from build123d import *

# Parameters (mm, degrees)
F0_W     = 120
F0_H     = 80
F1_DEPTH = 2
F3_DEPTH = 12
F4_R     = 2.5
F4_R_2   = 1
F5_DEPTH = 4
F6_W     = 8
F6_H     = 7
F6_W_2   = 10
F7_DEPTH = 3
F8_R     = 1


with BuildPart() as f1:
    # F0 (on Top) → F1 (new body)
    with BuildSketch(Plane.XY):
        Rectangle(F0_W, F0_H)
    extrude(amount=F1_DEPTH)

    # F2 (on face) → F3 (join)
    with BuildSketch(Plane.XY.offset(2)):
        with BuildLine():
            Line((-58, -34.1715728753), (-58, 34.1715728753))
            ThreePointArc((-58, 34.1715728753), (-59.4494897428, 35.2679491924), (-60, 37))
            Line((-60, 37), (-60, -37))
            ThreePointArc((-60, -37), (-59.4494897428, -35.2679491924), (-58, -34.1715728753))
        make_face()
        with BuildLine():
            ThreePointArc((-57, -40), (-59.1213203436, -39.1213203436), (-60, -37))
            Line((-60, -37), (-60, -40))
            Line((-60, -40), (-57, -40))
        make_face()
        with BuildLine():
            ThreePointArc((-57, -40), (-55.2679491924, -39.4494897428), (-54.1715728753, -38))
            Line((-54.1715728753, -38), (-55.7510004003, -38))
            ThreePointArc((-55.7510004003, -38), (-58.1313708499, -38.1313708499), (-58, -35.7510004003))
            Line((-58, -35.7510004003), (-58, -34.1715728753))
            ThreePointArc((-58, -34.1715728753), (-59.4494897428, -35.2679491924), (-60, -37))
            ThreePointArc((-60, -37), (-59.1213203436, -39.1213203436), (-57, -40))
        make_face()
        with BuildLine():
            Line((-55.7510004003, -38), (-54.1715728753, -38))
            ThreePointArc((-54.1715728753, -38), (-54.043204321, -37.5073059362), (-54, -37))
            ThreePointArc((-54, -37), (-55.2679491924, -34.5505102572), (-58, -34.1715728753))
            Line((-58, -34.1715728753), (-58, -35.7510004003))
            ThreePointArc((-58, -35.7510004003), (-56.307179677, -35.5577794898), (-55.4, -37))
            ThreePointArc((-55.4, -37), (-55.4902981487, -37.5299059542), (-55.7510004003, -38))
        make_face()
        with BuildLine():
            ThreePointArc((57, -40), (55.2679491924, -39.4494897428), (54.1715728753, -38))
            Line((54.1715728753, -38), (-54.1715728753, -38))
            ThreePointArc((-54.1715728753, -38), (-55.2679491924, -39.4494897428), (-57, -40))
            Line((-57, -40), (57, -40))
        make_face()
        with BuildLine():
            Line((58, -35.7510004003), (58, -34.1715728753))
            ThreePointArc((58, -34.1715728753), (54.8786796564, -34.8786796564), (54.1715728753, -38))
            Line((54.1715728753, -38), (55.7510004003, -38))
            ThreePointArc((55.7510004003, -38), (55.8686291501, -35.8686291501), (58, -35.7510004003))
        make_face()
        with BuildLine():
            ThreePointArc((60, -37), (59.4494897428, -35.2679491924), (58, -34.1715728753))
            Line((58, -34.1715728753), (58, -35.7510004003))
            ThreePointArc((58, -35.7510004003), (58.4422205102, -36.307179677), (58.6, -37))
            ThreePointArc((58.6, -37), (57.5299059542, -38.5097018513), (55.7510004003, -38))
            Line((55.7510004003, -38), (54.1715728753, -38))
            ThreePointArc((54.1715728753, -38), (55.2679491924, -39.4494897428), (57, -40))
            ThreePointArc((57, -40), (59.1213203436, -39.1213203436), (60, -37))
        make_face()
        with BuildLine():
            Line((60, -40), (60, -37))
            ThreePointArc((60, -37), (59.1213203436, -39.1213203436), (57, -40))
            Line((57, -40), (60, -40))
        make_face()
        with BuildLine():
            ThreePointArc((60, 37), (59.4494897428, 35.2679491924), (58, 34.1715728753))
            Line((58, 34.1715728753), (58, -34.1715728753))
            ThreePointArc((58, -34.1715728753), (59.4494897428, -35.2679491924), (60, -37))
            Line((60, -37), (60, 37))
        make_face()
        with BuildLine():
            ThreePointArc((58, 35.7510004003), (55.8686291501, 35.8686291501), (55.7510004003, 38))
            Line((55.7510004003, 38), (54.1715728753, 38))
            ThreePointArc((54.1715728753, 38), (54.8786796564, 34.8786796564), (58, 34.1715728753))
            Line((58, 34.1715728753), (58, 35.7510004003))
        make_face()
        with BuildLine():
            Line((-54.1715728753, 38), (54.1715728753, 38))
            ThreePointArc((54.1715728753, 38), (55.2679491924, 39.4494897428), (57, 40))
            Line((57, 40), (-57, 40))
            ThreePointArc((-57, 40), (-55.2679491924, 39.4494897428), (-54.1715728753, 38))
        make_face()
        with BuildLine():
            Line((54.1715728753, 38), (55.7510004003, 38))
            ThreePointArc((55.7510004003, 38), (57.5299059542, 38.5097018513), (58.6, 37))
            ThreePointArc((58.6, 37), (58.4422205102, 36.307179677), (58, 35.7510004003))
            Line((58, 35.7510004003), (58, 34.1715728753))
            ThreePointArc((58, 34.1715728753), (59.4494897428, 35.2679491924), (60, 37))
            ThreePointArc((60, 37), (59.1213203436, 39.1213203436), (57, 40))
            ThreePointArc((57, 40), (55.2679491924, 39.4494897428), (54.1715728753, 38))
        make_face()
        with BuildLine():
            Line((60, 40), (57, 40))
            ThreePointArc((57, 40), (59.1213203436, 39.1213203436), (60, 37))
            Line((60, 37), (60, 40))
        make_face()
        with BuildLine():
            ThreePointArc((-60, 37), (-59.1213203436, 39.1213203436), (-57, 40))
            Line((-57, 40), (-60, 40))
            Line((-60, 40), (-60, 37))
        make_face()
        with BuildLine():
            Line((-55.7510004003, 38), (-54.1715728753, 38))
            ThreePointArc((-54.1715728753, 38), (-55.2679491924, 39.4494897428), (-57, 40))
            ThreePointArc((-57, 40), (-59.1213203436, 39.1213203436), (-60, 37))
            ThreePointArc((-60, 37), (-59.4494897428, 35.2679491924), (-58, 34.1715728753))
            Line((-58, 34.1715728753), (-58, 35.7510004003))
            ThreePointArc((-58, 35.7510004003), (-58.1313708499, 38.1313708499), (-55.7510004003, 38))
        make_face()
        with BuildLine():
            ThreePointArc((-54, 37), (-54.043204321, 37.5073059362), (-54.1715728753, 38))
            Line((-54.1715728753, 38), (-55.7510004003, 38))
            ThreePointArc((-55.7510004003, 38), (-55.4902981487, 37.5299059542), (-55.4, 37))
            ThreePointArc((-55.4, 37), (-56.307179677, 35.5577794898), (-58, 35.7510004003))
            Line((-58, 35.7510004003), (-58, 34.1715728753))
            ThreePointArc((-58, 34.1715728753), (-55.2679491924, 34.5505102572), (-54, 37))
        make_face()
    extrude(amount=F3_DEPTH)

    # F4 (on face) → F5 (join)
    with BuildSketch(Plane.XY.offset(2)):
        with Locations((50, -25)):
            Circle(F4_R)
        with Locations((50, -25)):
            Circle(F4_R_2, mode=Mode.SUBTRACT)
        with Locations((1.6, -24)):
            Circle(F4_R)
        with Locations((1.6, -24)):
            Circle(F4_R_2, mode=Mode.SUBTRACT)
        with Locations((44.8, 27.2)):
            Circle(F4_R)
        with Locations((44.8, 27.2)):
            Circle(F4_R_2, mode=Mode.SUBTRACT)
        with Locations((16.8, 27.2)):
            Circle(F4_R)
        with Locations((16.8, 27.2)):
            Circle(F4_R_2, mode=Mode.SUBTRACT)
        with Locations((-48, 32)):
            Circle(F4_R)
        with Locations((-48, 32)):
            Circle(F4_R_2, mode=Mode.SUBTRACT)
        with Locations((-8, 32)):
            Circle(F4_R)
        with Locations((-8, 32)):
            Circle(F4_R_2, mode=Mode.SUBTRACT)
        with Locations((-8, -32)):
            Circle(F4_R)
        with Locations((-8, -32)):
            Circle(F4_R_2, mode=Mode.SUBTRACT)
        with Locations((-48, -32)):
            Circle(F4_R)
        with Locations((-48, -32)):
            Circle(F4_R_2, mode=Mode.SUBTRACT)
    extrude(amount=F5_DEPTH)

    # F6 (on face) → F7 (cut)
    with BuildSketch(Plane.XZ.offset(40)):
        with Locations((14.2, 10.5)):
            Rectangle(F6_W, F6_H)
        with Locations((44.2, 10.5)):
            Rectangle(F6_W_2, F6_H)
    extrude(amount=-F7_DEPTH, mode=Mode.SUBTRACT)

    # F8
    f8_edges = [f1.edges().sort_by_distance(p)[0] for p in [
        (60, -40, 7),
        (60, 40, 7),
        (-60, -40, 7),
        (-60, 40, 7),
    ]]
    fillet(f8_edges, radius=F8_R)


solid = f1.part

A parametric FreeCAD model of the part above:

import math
import FreeCAD as App
import Part
import Sketcher
Q = App.Units.Quantity


def edges_at(feature, points):
    """Names of the edges that pass closest to the given points."""
    edges = feature.Shape.Edges
    near = lambda p: min(range(len(edges)), key=lambda i: edges[i].distToShape(Part.Vertex(*p))[0])
    return sorted({f"Edge{near(p) + 1}" for p in points})


def add_polygon(sketch, points):
    """Adds a closed chain of lines whose ends are joined by coincident constraints."""
    first, n = sketch.GeometryCount, len(points)
    for a, b in zip(points, points[1:] + points[:1]):
        sketch.addGeometry(Part.LineSegment(App.Vector(*a, 0), App.Vector(*b, 0)), False)
    for i in range(n):
        sketch.addConstraint(Sketcher.Constraint("Coincident", first + i, 2, first + (i + 1) % n, 1))

doc = App.newDocument("Part")
params = doc.addObject("Spreadsheet::Sheet", "Params")
for row, (alias, value) in enumerate([
    ("sketch1_width", "120 mm"),
    ("sketch1_height", "80 mm"),
    ("pad1_length", "2 mm"),
    ("sketch2_radius", "3 mm"),
    ("sketch2_radius2", "1.6 mm"),
    ("sketch2_width", "120 mm"),
    ("sketch2_height", "80 mm"),
    ("pad2_length", "12 mm"),
    ("sketch3_diameter", "5 mm"),
    ("sketch3_diameter2", "2 mm"),
    ("pad3_length", "4 mm"),
    ("sketch4_width", "8 mm"),
    ("sketch4_width2", "10 mm"),
    ("sketch4_height", "7 mm"),
    ("pocket1_length", "3 mm"),
    ("fillet_radius", "1 mm"),
], start=1):
    params.set(f"A{row}", alias)
    params.set(f"B{row}", "=" + value)
    params.setAlias(f"B{row}", alias)

body = doc.addObject("PartDesign::Body", "Body")

sketch1 = body.newObject("Sketcher::SketchObject", "Sketch")
sketch1.AttachmentSupport = (doc.getObject("XY_Plane"), [""])
sketch1.MapMode = "FlatFace"
add_polygon(sketch1, [(-60, 40), (-60, -40), (60, -40), (60, 40)])
sketch1.addConstraint(Sketcher.Constraint("Vertical", 0))
sketch1.addConstraint(Sketcher.Constraint("Horizontal", 1))
sketch1.addConstraint(Sketcher.Constraint("Vertical", 2))
sketch1.addConstraint(Sketcher.Constraint("Horizontal", 3))
sketch1.addConstraint(Sketcher.Constraint("Symmetric", 0, 2, 2, 2, -1, 1))
sketch1.addConstraint(Sketcher.Constraint("DistanceX", 1, 1, 1, 2, Q("120 mm")))
sketch1.addConstraint(Sketcher.Constraint("DistanceY", 0, 2, 0, 1, Q("80 mm")))
sketch1.setExpression("Constraints[9]", "Params.sketch1_width")
sketch1.setExpression("Constraints[10]", "Params.sketch1_height")
pad1 = body.newObject("PartDesign::Pad", "Pad")
pad1.Profile = sketch1
pad1.setExpression("Length", "Params.pad1_length")

sketch2 = body.newObject("Sketcher::SketchObject", "Sketch001")
sketch2.AttachmentSupport = (doc.getObject("XY_Plane"), [""])
sketch2.MapMode = "FlatFace"
sketch2.AttachmentOffset = App.Placement(App.Vector(0, 0, 2), App.Rotation())
add_polygon(sketch2, [(-60, -40), (60, -40), (60, 40), (-60, 40)])
sketch2.addGeometry(Part.ArcOfCircle(Part.Circle(App.Vector(57, 37, 0), App.Vector(0, 0, 1), 3), math.radians(161), math.radians(289)), False)
sketch2.addGeometry(Part.LineSegment(App.Vector(58, 34.2, 0), App.Vector(58, -34.2, 0)), False)
sketch2.addGeometry(Part.ArcOfCircle(Part.Circle(App.Vector(57, -37, 0), App.Vector(0, 0, 1), 3), math.radians(71), math.radians(199)), False)
sketch2.addGeometry(Part.LineSegment(App.Vector(54.2, -38, 0), App.Vector(-54.2, -38, 0)), False)
sketch2.addGeometry(Part.ArcOfCircle(Part.Circle(App.Vector(-57, -37, 0), App.Vector(0, 0, 1), 3), math.radians(-19.47), math.radians(0)), False)
sketch2.addGeometry(Part.ArcOfCircle(Part.Circle(App.Vector(-57, -37, 0), App.Vector(0, 0, 1), 3), math.radians(0), math.radians(109)), False)
sketch2.addGeometry(Part.LineSegment(App.Vector(-58, -34.2, 0), App.Vector(-58, 34.2, 0)), False)
sketch2.addGeometry(Part.ArcOfCircle(Part.Circle(App.Vector(-57, 37, 0), App.Vector(0, 0, 1), 3), math.radians(-109), math.radians(0)), False)
sketch2.addGeometry(Part.ArcOfCircle(Part.Circle(App.Vector(-57, 37, 0), App.Vector(0, 0, 1), 3), math.radians(0), math.radians(19.47)), False)
sketch2.addGeometry(Part.LineSegment(App.Vector(-54.2, 38, 0), App.Vector(54.2, 38, 0)), False)
sketch2.addGeometry(Part.ArcOfCircle(Part.Circle(App.Vector(-57, 37, 0), App.Vector(0, 0, 1), 1.6), math.radians(39), math.radians(231)), False)
sketch2.addGeometry(Part.ArcOfCircle(Part.Circle(App.Vector(-57, 37, 0), App.Vector(0, 0, 1), 1.6), math.radians(0), math.radians(39)), False)
sketch2.addGeometry(Part.ArcOfCircle(Part.Circle(App.Vector(-57, 37, 0), App.Vector(0, 0, 1), 1.6), math.radians(-129), math.radians(0)), False)
sketch2.addGeometry(Part.ArcOfCircle(Part.Circle(App.Vector(-57, -37, 0), App.Vector(0, 0, 1), 1.6), math.radians(129), math.radians(321)), False)
sketch2.addGeometry(Part.ArcOfCircle(Part.Circle(App.Vector(-57, -37, 0), App.Vector(0, 0, 1), 1.6), math.radians(0), math.radians(129)), False)
sketch2.addGeometry(Part.ArcOfCircle(Part.Circle(App.Vector(-57, -37, 0), App.Vector(0, 0, 1), 1.6), math.radians(-39), math.radians(0)), False)
sketch2.addGeometry(Part.ArcOfCircle(Part.Circle(App.Vector(57, -37, 0), App.Vector(0, 0, 1), 1.6), math.radians(0), math.radians(51)), False)
sketch2.addGeometry(Part.ArcOfCircle(Part.Circle(App.Vector(57, -37, 0), App.Vector(0, 0, 1), 1.6), math.radians(-141), math.radians(0)), False)
sketch2.addGeometry(Part.ArcOfCircle(Part.Circle(App.Vector(57, -37, 0), App.Vector(0, 0, 1), 1.6), math.radians(51), math.radians(219)), False)
sketch2.addGeometry(Part.ArcOfCircle(Part.Circle(App.Vector(57, 37, 0), App.Vector(0, 0, 1), 1.6), math.radians(0), math.radians(141)), False)
sketch2.addGeometry(Part.ArcOfCircle(Part.Circle(App.Vector(57, 37, 0), App.Vector(0, 0, 1), 1.6), math.radians(-51), math.radians(0)), False)
sketch2.addGeometry(Part.ArcOfCircle(Part.Circle(App.Vector(57, 37, 0), App.Vector(0, 0, 1), 1.6), math.radians(141), math.radians(309)), False)
sketch2.addConstraint(Sketcher.Constraint("Coincident", 4, 2, 5, 1))
sketch2.addConstraint(Sketcher.Constraint("Coincident", 5, 2, 6, 1))
sketch2.addConstraint(Sketcher.Constraint("Coincident", 6, 2, 7, 1))
sketch2.addConstraint(Sketcher.Constraint("Coincident", 7, 2, 8, 1))
sketch2.addConstraint(Sketcher.Constraint("Tangent", 8, 2, 9, 1))
sketch2.addConstraint(Sketcher.Constraint("Coincident", 9, 2, 10, 1))
sketch2.addConstraint(Sketcher.Constraint("Coincident", 10, 2, 11, 1))
sketch2.addConstraint(Sketcher.Constraint("Tangent", 11, 2, 12, 1))
sketch2.addConstraint(Sketcher.Constraint("Coincident", 12, 2, 13, 1))
sketch2.addConstraint(Sketcher.Constraint("Coincident", 13, 2, 4, 1))
sketch2.addConstraint(Sketcher.Constraint("Tangent", 14, 1, 15, 2))
sketch2.addConstraint(Sketcher.Constraint("Tangent", 15, 1, 16, 2))
sketch2.addConstraint(Sketcher.Constraint("Tangent", 16, 1, 14, 2))
sketch2.addConstraint(Sketcher.Constraint("Tangent", 17, 1, 18, 2))
sketch2.addConstraint(Sketcher.Constraint("Tangent", 18, 1, 19, 2))
sketch2.addConstraint(Sketcher.Constraint("Tangent", 19, 1, 17, 2))
sketch2.addConstraint(Sketcher.Constraint("Tangent", 20, 1, 21, 2))
sketch2.addConstraint(Sketcher.Constraint("Tangent", 21, 1, 22, 2))
sketch2.addConstraint(Sketcher.Constraint("Tangent", 22, 1, 20, 2))
sketch2.addConstraint(Sketcher.Constraint("Tangent", 23, 1, 24, 2))
sketch2.addConstraint(Sketcher.Constraint("Tangent", 24, 1, 25, 2))
sketch2.addConstraint(Sketcher.Constraint("Tangent", 25, 1, 23, 2))
sketch2.addConstraint(Sketcher.Constraint("Horizontal", 0))
sketch2.addConstraint(Sketcher.Constraint("Vertical", 1))
sketch2.addConstraint(Sketcher.Constraint("Horizontal", 2))
sketch2.addConstraint(Sketcher.Constraint("Vertical", 3))
sketch2.addConstraint(Sketcher.Constraint("Vertical", 5))
sketch2.addConstraint(Sketcher.Constraint("Horizontal", 7))
sketch2.addConstraint(Sketcher.Constraint("Vertical", 10))
sketch2.addConstraint(Sketcher.Constraint("Horizontal", 13))
sketch2.addConstraint(Sketcher.Constraint("Coincident", 14, 3, 11, 3))
sketch2.addConstraint(Sketcher.Constraint("Coincident", 17, 3, 8, 3))
sketch2.addConstraint(Sketcher.Constraint("Coincident", 20, 3, 6, 3))
sketch2.addConstraint(Sketcher.Constraint("Coincident", 23, 3, 4, 3))
sketch2.addConstraint(Sketcher.Constraint("Equal", 4, 6))
sketch2.addConstraint(Sketcher.Constraint("Equal", 6, 8))
sketch2.addConstraint(Sketcher.Constraint("Equal", 8, 9))
sketch2.addConstraint(Sketcher.Constraint("Equal", 9, 11))
sketch2.addConstraint(Sketcher.Constraint("Equal", 11, 12))
sketch2.addConstraint(Sketcher.Constraint("Equal", 16, 17))
sketch2.addConstraint(Sketcher.Constraint("Equal", 19, 20))
sketch2.addConstraint(Sketcher.Constraint("Equal", 22, 23))
sketch2.addConstraint(Sketcher.Constraint("Symmetric", 4, 3, 8, 3, -1, 1))
sketch2.addConstraint(Sketcher.Constraint("Symmetric", 6, 3, 11, 3, -1, 1))
sketch2.addConstraint(Sketcher.Constraint("Symmetric", 0, 2, 2, 2, -1, 1))
sketch2.addConstraint(Sketcher.Constraint("Symmetric", 6, 3, 8, 3, -2))
sketch2.addConstraint(Sketcher.Constraint("Horizontal", 22, 3, 8, 2))
sketch2.addConstraint(Sketcher.Constraint("Horizontal", 5, 2, 9, 2))
sketch2.addConstraint(Sketcher.Constraint("Horizontal", 25, 3, 11, 2))
sketch2.addConstraint(Sketcher.Constraint("Horizontal", 13, 2, 14, 1))
sketch2.addConstraint(Sketcher.Constraint("Horizontal", 11, 2, 15, 1))
sketch2.addConstraint(Sketcher.Constraint("Horizontal", 8, 2, 18, 1))
sketch2.addConstraint(Sketcher.Constraint("Horizontal", 7, 2, 19, 1))
sketch2.addConstraint(Sketcher.Constraint("Horizontal", 18, 1, 20, 1))
sketch2.addConstraint(Sketcher.Constraint("Horizontal", 19, 1, 21, 1))
sketch2.addConstraint(Sketcher.Constraint("Horizontal", 17, 1, 22, 1))
sketch2.addConstraint(Sketcher.Constraint("Horizontal", 15, 1, 23, 1))
sketch2.addConstraint(Sketcher.Constraint("Horizontal", 16, 1, 24, 1))
sketch2.addConstraint(Sketcher.Constraint("Horizontal", 14, 1, 25, 1))
sketch2.addConstraint(Sketcher.Constraint("Vertical", 7, 2, 12, 2))
sketch2.addConstraint(Sketcher.Constraint("Vertical", 10, 2, 16, 1))
sketch2.addConstraint(Sketcher.Constraint("Vertical", 16, 1, 17, 1))
sketch2.addConstraint(Sketcher.Constraint("Radius", 4, Q("3 mm")))
sketch2.addConstraint(Sketcher.Constraint("Radius", 14, Q("1.6 mm")))
sketch2.addConstraint(Sketcher.Constraint("DistanceX", 0, 1, 0, 2, Q("120 mm")))
sketch2.addConstraint(Sketcher.Constraint("DistanceY", 1, 1, 1, 2, Q("80 mm")))
sketch2.addConstraint(Sketcher.Constraint("DistanceX", -1, 1, 4, 3, Q("57 mm")))
sketch2.addConstraint(Sketcher.Constraint("DistanceY", -1, 1, 4, 3, Q("37 mm")))
sketch2.addConstraint(Sketcher.Constraint("DistanceX", -1, 1, 4, 2, Q("58 mm")))
sketch2.addConstraint(Sketcher.Constraint("DistanceY", 6, 2, -1, 1, Q("38 mm")))
sketch2.setExpression("Constraints[66]", "Params.sketch2_radius")
sketch2.setExpression("Constraints[67]", "Params.sketch2_radius2")
sketch2.setExpression("Constraints[68]", "Params.sketch2_width")
sketch2.setExpression("Constraints[69]", "Params.sketch2_height")
pad2 = body.newObject("PartDesign::Pad", "Pad001")
pad2.Profile = sketch2
pad2.setExpression("Length", "Params.pad2_length")

sketch3 = body.newObject("Sketcher::SketchObject", "Sketch002")
sketch3.AttachmentSupport = (doc.getObject("XY_Plane"), [""])
sketch3.MapMode = "FlatFace"
sketch3.AttachmentOffset = App.Placement(App.Vector(0, 0, 2), App.Rotation())
sketch3.addGeometry(Part.Circle(App.Vector(50, -25, 0), App.Vector(0, 0, 1), 2.5), False)
sketch3.addGeometry(Part.Circle(App.Vector(50, -25, 0), App.Vector(0, 0, 1), 1), False)
sketch3.addGeometry(Part.Circle(App.Vector(1.6, -24, 0), App.Vector(0, 0, 1), 2.5), False)
sketch3.addGeometry(Part.Circle(App.Vector(1.6, -24, 0), App.Vector(0, 0, 1), 1), False)
sketch3.addGeometry(Part.Circle(App.Vector(44.8, 27.2, 0), App.Vector(0, 0, 1), 2.5), False)
sketch3.addGeometry(Part.Circle(App.Vector(44.8, 27.2, 0), App.Vector(0, 0, 1), 1), False)
sketch3.addGeometry(Part.Circle(App.Vector(16.8, 27.2, 0), App.Vector(0, 0, 1), 2.5), False)
sketch3.addGeometry(Part.Circle(App.Vector(16.8, 27.2, 0), App.Vector(0, 0, 1), 1), False)
sketch3.addGeometry(Part.Circle(App.Vector(-48, 32, 0), App.Vector(0, 0, 1), 2.5), False)
sketch3.addGeometry(Part.Circle(App.Vector(-48, 32, 0), App.Vector(0, 0, 1), 1), False)
sketch3.addGeometry(Part.Circle(App.Vector(-8, 32, 0), App.Vector(0, 0, 1), 2.5), False)
sketch3.addGeometry(Part.Circle(App.Vector(-8, 32, 0), App.Vector(0, 0, 1), 1), False)
sketch3.addGeometry(Part.Circle(App.Vector(-8, -32, 0), App.Vector(0, 0, 1), 2.5), False)
sketch3.addGeometry(Part.Circle(App.Vector(-8, -32, 0), App.Vector(0, 0, 1), 1), False)
sketch3.addGeometry(Part.Circle(App.Vector(-48, -32, 0), App.Vector(0, 0, 1), 2.5), False)
sketch3.addGeometry(Part.Circle(App.Vector(-48, -32, 0), App.Vector(0, 0, 1), 1), False)
sketch3.addConstraint(Sketcher.Constraint("Coincident", 1, 3, 0, 3))
sketch3.addConstraint(Sketcher.Constraint("Coincident", 3, 3, 2, 3))
sketch3.addConstraint(Sketcher.Constraint("Coincident", 5, 3, 4, 3))
sketch3.addConstraint(Sketcher.Constraint("Coincident", 7, 3, 6, 3))
sketch3.addConstraint(Sketcher.Constraint("Coincident", 9, 3, 8, 3))
sketch3.addConstraint(Sketcher.Constraint("Coincident", 11, 3, 10, 3))
sketch3.addConstraint(Sketcher.Constraint("Coincident", 13, 3, 12, 3))
sketch3.addConstraint(Sketcher.Constraint("Coincident", 15, 3, 14, 3))
sketch3.addConstraint(Sketcher.Constraint("Equal", 0, 2))
sketch3.addConstraint(Sketcher.Constraint("Equal", 1, 3))
sketch3.addConstraint(Sketcher.Constraint("Equal", 2, 4))
sketch3.addConstraint(Sketcher.Constraint("Equal", 3, 5))
sketch3.addConstraint(Sketcher.Constraint("Equal", 4, 6))
sketch3.addConstraint(Sketcher.Constraint("Equal", 5, 7))
sketch3.addConstraint(Sketcher.Constraint("Equal", 6, 8))
sketch3.addConstraint(Sketcher.Constraint("Equal", 7, 9))
sketch3.addConstraint(Sketcher.Constraint("Equal", 8, 10))
sketch3.addConstraint(Sketcher.Constraint("Equal", 9, 11))
sketch3.addConstraint(Sketcher.Constraint("Equal", 10, 12))
sketch3.addConstraint(Sketcher.Constraint("Equal", 11, 13))
sketch3.addConstraint(Sketcher.Constraint("Equal", 12, 14))
sketch3.addConstraint(Sketcher.Constraint("Equal", 13, 15))
sketch3.addConstraint(Sketcher.Constraint("Symmetric", 10, 3, 12, 3, -1))
sketch3.addConstraint(Sketcher.Constraint("Symmetric", 8, 3, 14, 3, -1))
sketch3.addConstraint(Sketcher.Constraint("Horizontal", 5, 3, 6, 3))
sketch3.addConstraint(Sketcher.Constraint("Horizontal", 9, 3, 10, 3))
sketch3.addConstraint(Sketcher.Constraint("Diameter", 0, Q("5 mm")))
sketch3.addConstraint(Sketcher.Constraint("Diameter", 1, Q("2 mm")))
sketch3.addConstraint(Sketcher.Constraint("DistanceX", -1, 1, 0, 3, Q("50 mm")))
sketch3.addConstraint(Sketcher.Constraint("DistanceY", 0, 3, -1, 1, Q("25 mm")))
sketch3.addConstraint(Sketcher.Constraint("DistanceY", 2, 3, -1, 1, Q("24 mm")))
sketch3.addConstraint(Sketcher.Constraint("DistanceX", 8, 3, -1, 1, Q("48 mm")))
sketch3.addConstraint(Sketcher.Constraint("DistanceY", -1, 1, 8, 3, Q("32 mm")))
sketch3.addConstraint(Sketcher.Constraint("DistanceX", 10, 3, -1, 1, Q("8 mm")))
sketch3.addConstraint(Sketcher.Constraint("DistanceX", 6, 3, 4, 3, Q("28 mm")))
sketch3.addConstraint(Sketcher.Constraint("DistanceX", -1, 1, 2, 3, Q("1.6 mm")))
sketch3.addConstraint(Sketcher.Constraint("DistanceX", -1, 1, 4, 3, Q("44.8 mm")))
sketch3.addConstraint(Sketcher.Constraint("DistanceY", -1, 1, 4, 3, Q("27.2 mm")))
sketch3.setExpression("Constraints[26]", "Params.sketch3_diameter")
sketch3.setExpression("Constraints[27]", "Params.sketch3_diameter2")
pad3 = body.newObject("PartDesign::Pad", "Pad002")
pad3.Profile = sketch3
pad3.setExpression("Length", "Params.pad3_length")

sketch4 = body.newObject("Sketcher::SketchObject", "Sketch003")
sketch4.AttachmentSupport = (doc.getObject("XZ_Plane"), [""])
sketch4.MapMode = "FlatFace"
sketch4.AttachmentOffset = App.Placement(App.Vector(0, 0, 40), App.Rotation())
add_polygon(sketch4, [(10, 14), (10, 7), (18, 7), (18, 14)])
add_polygon(sketch4, [(39, 14), (39, 7), (49, 7), (49, 14)])
sketch4.addConstraint(Sketcher.Constraint("Vertical", 0))
sketch4.addConstraint(Sketcher.Constraint("Horizontal", 1))
sketch4.addConstraint(Sketcher.Constraint("Vertical", 2))
sketch4.addConstraint(Sketcher.Constraint("Horizontal", 3))
sketch4.addConstraint(Sketcher.Constraint("Vertical", 4))
sketch4.addConstraint(Sketcher.Constraint("Horizontal", 5))
sketch4.addConstraint(Sketcher.Constraint("Vertical", 6))
sketch4.addConstraint(Sketcher.Constraint("Horizontal", 7))
sketch4.addConstraint(Sketcher.Constraint("Horizontal", 1, 2, 4, 2))
sketch4.addConstraint(Sketcher.Constraint("Horizontal", 3, 2, 6, 2))
sketch4.addConstraint(Sketcher.Constraint("DistanceX", 1, 1, 1, 2, Q("8 mm")))
sketch4.addConstraint(Sketcher.Constraint("DistanceX", 5, 1, 5, 2, Q("10 mm")))
sketch4.addConstraint(Sketcher.Constraint("DistanceY", 0, 2, 0, 1, Q("7 mm")))
sketch4.addConstraint(Sketcher.Constraint("DistanceY", -1, 1, 0, 2, Q("7 mm")))
sketch4.addConstraint(Sketcher.Constraint("DistanceX", 1, 2, 4, 2, Q("21 mm")))
sketch4.addConstraint(Sketcher.Constraint("DistanceX", -1, 1, 0, 2, Q("10.2 mm")))
sketch4.setExpression("Constraints[18]", "Params.sketch4_width")
sketch4.setExpression("Constraints[19]", "Params.sketch4_width2")
sketch4.setExpression("Constraints[20]", "Params.sketch4_height")
pocket1 = body.newObject("PartDesign::Pocket", "Pocket")
pocket1.Profile = sketch4
pocket1.setExpression("Length", "Params.pocket1_length")
doc.recompute()

fillet = body.newObject("PartDesign::Fillet", "Fillet")
fillet.Base = (pocket1, edges_at(pocket1, [
    (60, -40, 7),
    (60, 40, 7),
    (-60, -40, 7),
    (-60, 40, 7),
]))
fillet.setExpression("Radius", "Params.fillet_radius")

doc.recompute()
